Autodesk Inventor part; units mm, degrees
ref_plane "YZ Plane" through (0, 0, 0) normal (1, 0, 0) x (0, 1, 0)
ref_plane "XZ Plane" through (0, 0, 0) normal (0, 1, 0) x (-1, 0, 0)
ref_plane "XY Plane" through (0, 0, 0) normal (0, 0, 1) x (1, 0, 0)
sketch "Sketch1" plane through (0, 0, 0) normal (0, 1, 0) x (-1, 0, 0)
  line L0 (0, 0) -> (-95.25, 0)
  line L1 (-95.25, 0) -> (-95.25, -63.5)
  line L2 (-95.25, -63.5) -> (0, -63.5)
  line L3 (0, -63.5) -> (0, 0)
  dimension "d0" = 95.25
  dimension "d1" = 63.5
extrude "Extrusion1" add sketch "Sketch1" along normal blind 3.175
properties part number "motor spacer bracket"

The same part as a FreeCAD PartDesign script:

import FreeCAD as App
import Part
import Sketcher

V = App.Vector
Q = App.Units.Quantity

doc = App.newDocument("Part")
params = doc.addObject("Spreadsheet::Sheet", "Params")
for row, (alias, value) in enumerate([
    ("sketch1_height", "2.5 in"),
    ("sketch1_width", "3.75 in"),
    ("pad1_length", "0.125 in"),
], start=1):
    params.set(f"A{row}", alias)
    params.set(f"B{row}", "=" + value)
    params.setAlias(f"B{row}", alias)

body = doc.addObject("PartDesign::Body", "Body")

sketch1 = body.newObject("Sketcher::SketchObject", "Sketch")
sketch1.AttachmentSupport = (doc.getObject("XZ_Plane"), [""])
sketch1.MapMode = "FlatFace"
sketch1.addGeometry([
    Part.LineSegment(V(0, -64, 0), V(0, 0, 0)),
    Part.LineSegment(V(0, 0, 0), V(95, 0, 0)),
    Part.LineSegment(V(95, 0, 0), V(95, -64, 0)),
    Part.LineSegment(V(95, -64, 0), V(0, -64, 0)),
], False)
sketch1.addConstraint([
    Sketcher.Constraint("Coincident", 0, 2, 1, 1),
    Sketcher.Constraint("Coincident", 1, 2, 2, 1),
    Sketcher.Constraint("Coincident", 2, 2, 3, 1),
    Sketcher.Constraint("Coincident", 3, 2, 0, 1),
    Sketcher.Constraint("Vertical", 0),
    Sketcher.Constraint("Horizontal", 1),
    Sketcher.Constraint("Vertical", 2),
    Sketcher.Constraint("Horizontal", 3),
    Sketcher.Constraint("Coincident", 0, 2, -1, 1),
    Sketcher.Constraint("DistanceY", 0, 1, 0, 2, Q("2.5 in")),
    Sketcher.Constraint("DistanceX", 1, 1, 1, 2, Q("3.75 in")),
])
sketch1.setExpression("Constraints[9]", "Params.sketch1_height")
sketch1.setExpression("Constraints[10]", "Params.sketch1_width")
pad1 = body.newObject("PartDesign::Pad", "Pad")
pad1.Profile = sketch1
pad1.setExpression("Length", "Params.pad1_length")
pad1.Reversed = True

doc.recompute()
